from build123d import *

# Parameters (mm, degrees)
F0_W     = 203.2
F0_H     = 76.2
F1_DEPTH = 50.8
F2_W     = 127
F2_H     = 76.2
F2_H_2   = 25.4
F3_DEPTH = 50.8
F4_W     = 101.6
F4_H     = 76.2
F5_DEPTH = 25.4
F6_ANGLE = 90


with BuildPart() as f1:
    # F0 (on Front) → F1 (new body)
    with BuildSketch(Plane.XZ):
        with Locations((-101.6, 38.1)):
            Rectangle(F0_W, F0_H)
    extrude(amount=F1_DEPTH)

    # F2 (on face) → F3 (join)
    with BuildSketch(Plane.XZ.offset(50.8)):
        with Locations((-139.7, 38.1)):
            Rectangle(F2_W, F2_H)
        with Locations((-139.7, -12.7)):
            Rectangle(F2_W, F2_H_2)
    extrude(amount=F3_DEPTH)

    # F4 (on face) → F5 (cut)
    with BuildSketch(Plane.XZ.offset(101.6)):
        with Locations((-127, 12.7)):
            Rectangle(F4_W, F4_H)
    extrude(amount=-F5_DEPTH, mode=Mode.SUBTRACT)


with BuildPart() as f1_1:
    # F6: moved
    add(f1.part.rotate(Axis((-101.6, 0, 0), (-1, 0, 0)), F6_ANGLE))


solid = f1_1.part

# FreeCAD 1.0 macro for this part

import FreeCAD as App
import Part
import Sketcher

V = App.Vector
Q = App.Units.Quantity

doc = App.newDocument("Part")
body = doc.addObject("PartDesign::Body", "Body")

# Sketch on XZ plane
sketch1 = body.newObject("Sketcher::SketchObject", "Sketch")
sketch1.AttachmentSupport = (doc.getObject("XZ_Plane"), [""])
sketch1.MapMode = "FlatFace"
sketch1.addGeometry([
    Part.LineSegment(V(-203.2, 76.2, 0), V(-203.2, 0, 0)),
    Part.LineSegment(V(-203.2, 0, 0), V(0, 0, 0)),
    Part.LineSegment(V(0, 0, 0), V(0, 76.2, 0)),
    Part.LineSegment(V(0, 76.2, 0), V(-203.2, 76.2, 0)),
], False)
sketch1.addConstraint([
    Sketcher.Constraint("Coincident", 0, 2, 1, 1),
    Sketcher.Constraint("Coincident", 1, 2, 2, 1),
    Sketcher.Constraint("Coincident", 2, 2, 3, 1),
    Sketcher.Constraint("Coincident", 3, 2, 0, 1),
    Sketcher.Constraint("Vertical", 0),
    Sketcher.Constraint("Horizontal", 1),
    Sketcher.Constraint("Vertical", 2),
    Sketcher.Constraint("Horizontal", 3),
    Sketcher.Constraint("Coincident", 1, 2, -1, 1),
    Sketcher.Constraint("DistanceX", 1, 1, 1, 2, Q("8 in")),
    Sketcher.Constraint("DistanceY", 0, 2, 0, 1, Q("3 in")),
])
pad1 = body.newObject("PartDesign::Pad", "Pad")
pad1.Profile = sketch1
pad1.Length = Q("2 in")

# Sketch on XZ plane
sketch2 = body.newObject("Sketcher::SketchObject", "Sketch001")
sketch2.AttachmentSupport = (doc.getObject("XZ_Plane"), [""])
sketch2.MapMode = "FlatFace"
sketch2.AttachmentOffset = App.Placement(V(0, 0, 2 * 25.4), App.Rotation())
sketch2.addGeometry([
    Part.LineSegment(V(-203.2, 76.2, 0), V(-203.2, -25.4, 0)),
    Part.LineSegment(V(-203.2, -25.4, 0), V(-76.2, -25.4, 0)),
    Part.LineSegment(V(-76.2, -25.4, 0), V(-76.2, 76.2, 0)),
    Part.LineSegment(V(-76.2, 76.2, 0), V(-203.2, 76.2, 0)),
], False)
sketch2.addConstraint([
    Sketcher.Constraint("Coincident", 0, 2, 1, 1),
    Sketcher.Constraint("Coincident", 1, 2, 2, 1),
    Sketcher.Constraint("Coincident", 2, 2, 3, 1),
    Sketcher.Constraint("Coincident", 3, 2, 0, 1),
    Sketcher.Constraint("Vertical", 0),
    Sketcher.Constraint("Horizontal", 1),
    Sketcher.Constraint("Vertical", 2),
    Sketcher.Constraint("Horizontal", 3),
    Sketcher.Constraint("DistanceX", 1, 1, 1, 2, Q("5 in")),
    Sketcher.Constraint("DistanceY", 0, 2, 0, 1, Q("4 in")),
    Sketcher.Constraint("DistanceX", 0, 2, -1, 1, Q("8 in")),
    Sketcher.Constraint("DistanceY", 0, 2, -1, 1, Q("1 in")),
])
pad2 = body.newObject("PartDesign::Pad", "Pad001")
pad2.Profile = sketch2
pad2.Length = Q("2 in")

# Sketch on XZ plane
sketch3 = body.newObject("Sketcher::SketchObject", "Sketch002")
sketch3.AttachmentSupport = (doc.getObject("XZ_Plane"), [""])
sketch3.MapMode = "FlatFace"
sketch3.AttachmentOffset = App.Placement(V(0, 0, 4 * 25.4), App.Rotation())
sketch3.addGeometry([
    Part.LineSegment(V(-177.8, 50.8, 0), V(-177.8, -25.4, 0)),
    Part.LineSegment(V(-177.8, -25.4, 0), V(-76.2, -25.4, 0)),
    Part.LineSegment(V(-76.2, -25.4, 0), V(-76.2, 50.8, 0)),
    Part.LineSegment(V(-76.2, 50.8, 0), V(-177.8, 50.8, 0)),
], False)
sketch3.addConstraint([
    Sketcher.Constraint("Coincident", 0, 2, 1, 1),
    Sketcher.Constraint("Coincident", 1, 2, 2, 1),
    Sketcher.Constraint("Coincident", 2, 2, 3, 1),
    Sketcher.Constraint("Coincident", 3, 2, 0, 1),
    Sketcher.Constraint("Vertical", 0),
    Sketcher.Constraint("Horizontal", 1),
    Sketcher.Constraint("Vertical", 2),
    Sketcher.Constraint("Horizontal", 3),
    Sketcher.Constraint("DistanceX", 1, 1, 1, 2, Q("4 in")),
    Sketcher.Constraint("DistanceY", 0, 2, 0, 1, Q("3 in")),
    Sketcher.Constraint("DistanceX", 0, 2, -1, 1, Q("7 in")),
    Sketcher.Constraint("DistanceY", 0, 2, -1, 1, Q("1 in")),
])
pocket1 = body.newObject("PartDesign::Pocket", "Pocket")
pocket1.Profile = sketch3
pocket1.Length = Q("1 in")
body2 = doc.addObject("PartDesign::Body", "Body001")
doc.recompute()

body.Placement = App.Placement(V(0, 0, 0), App.Rotation(V(-1, 0, 0), 90))
boolean = body2.newObject("PartDesign::Boolean", "Boolean")
boolean.Type = "Fuse"
boolean.addObjects([body])

doc.recompute()
